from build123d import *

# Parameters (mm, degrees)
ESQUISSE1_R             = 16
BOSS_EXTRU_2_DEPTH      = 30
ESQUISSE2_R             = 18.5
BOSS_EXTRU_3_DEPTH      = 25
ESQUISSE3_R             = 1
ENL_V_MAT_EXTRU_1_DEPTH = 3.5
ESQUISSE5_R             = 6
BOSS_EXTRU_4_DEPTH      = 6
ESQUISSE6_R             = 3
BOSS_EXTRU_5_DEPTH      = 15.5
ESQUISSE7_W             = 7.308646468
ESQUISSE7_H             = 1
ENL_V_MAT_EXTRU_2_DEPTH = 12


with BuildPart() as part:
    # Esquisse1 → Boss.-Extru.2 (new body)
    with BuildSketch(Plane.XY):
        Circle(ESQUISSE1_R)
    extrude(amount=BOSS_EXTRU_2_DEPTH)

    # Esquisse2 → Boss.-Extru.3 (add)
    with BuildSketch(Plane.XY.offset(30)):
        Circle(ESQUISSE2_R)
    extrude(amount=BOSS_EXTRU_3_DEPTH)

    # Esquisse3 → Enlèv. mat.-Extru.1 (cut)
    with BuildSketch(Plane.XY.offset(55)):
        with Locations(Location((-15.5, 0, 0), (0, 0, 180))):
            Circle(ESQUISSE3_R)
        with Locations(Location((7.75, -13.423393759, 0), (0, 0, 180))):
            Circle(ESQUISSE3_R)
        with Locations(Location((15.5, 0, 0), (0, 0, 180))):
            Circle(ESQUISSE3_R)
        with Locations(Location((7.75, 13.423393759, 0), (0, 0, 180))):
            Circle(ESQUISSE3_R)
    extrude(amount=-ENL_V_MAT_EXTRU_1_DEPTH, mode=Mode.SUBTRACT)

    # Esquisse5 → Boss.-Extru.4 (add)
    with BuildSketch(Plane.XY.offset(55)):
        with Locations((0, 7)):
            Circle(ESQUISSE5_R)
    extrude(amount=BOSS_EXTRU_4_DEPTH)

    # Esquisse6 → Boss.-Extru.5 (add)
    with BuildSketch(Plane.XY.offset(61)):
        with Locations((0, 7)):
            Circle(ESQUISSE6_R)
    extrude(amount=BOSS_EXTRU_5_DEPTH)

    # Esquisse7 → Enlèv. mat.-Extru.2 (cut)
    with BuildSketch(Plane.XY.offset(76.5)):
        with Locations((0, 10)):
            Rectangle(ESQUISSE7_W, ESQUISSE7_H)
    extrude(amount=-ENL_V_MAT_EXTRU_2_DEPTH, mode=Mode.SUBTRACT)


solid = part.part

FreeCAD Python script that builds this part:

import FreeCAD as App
import Part
import Sketcher


def add_polygon(sketch, points):
    """Adds a closed chain of lines whose ends are joined by coincident constraints."""
    first, n = sketch.GeometryCount, len(points)
    for a, b in zip(points, points[1:] + points[:1]):
        sketch.addGeometry(Part.LineSegment(App.Vector(*a, 0), App.Vector(*b, 0)), False)
    for i in range(n):
        sketch.addConstraint(Sketcher.Constraint("Coincident", first + i, 2, first + (i + 1) % n, 1))

doc = App.newDocument("Part")
body = doc.addObject("PartDesign::Body", "Body")

# Sketch on XY plane
sketch1 = body.newObject("Sketcher::SketchObject", "Sketch")
sketch1.AttachmentSupport = (doc.getObject("XY_Plane"), [""])
sketch1.MapMode = "FlatFace"
sketch1.addGeometry(Part.Circle(App.Vector(0, 0, 0), App.Vector(0, 0, 1), 16), False)
sketch1.addConstraint([
    Sketcher.Constraint("Coincident", 0, 3, -1, 1),
    Sketcher.Constraint("Diameter", 0, 32.0),
])
pad1 = body.newObject("PartDesign::Pad", "Pad")
pad1.Profile = sketch1
pad1.Length = 30

# Sketch on XY plane
sketch2 = body.newObject("Sketcher::SketchObject", "Sketch001")
sketch2.AttachmentSupport = (doc.getObject("XY_Plane"), [""])
sketch2.MapMode = "FlatFace"
sketch2.AttachmentOffset = App.Placement(App.Vector(0, 0, 30), App.Rotation())
sketch2.addGeometry(Part.Circle(App.Vector(0, 0, 0), App.Vector(0, 0, 1), 18), False)
sketch2.addConstraint([
    Sketcher.Constraint("Coincident", 0, 3, -1, 1),
    Sketcher.Constraint("Diameter", 0, 37.0),
])
pad2 = body.newObject("PartDesign::Pad", "Pad001")
pad2.Profile = sketch2
pad2.Length = 25

# Sketch on XY plane
sketch3 = body.newObject("Sketcher::SketchObject", "Sketch002")
sketch3.AttachmentSupport = (doc.getObject("XY_Plane"), [""])
sketch3.MapMode = "FlatFace"
sketch3.AttachmentOffset = App.Placement(App.Vector(0, 0, 55), App.Rotation())
sketch3.addGeometry([
    Part.Circle(App.Vector(-15.5, 0, 0), App.Vector(0, 0, 1), 1),
    Part.Circle(App.Vector(7.8, -13.4, 0), App.Vector(0, 0, 1), 1),
    Part.Circle(App.Vector(15.5, 0, 0), App.Vector(0, 0, 1), 1),
    Part.Circle(App.Vector(7.8, 13.4, 0), App.Vector(0, 0, 1), 1),
], False)
sketch3.addConstraint([
    Sketcher.Constraint("Equal", 0, 1),
    Sketcher.Constraint("Equal", 1, 2),
    Sketcher.Constraint("Equal", 2, 3),
    Sketcher.Constraint("Symmetric", 0, 3, 2, 3, -1, 1),
    Sketcher.Constraint("Symmetric", 1, 3, 3, 3, -1),
    Sketcher.Constraint("PointOnObject", 0, 3, -1),
    Sketcher.Constraint("Diameter", 0, 2.0),
    Sketcher.Constraint("DistanceX", 0, 3, 2, 3, 31.0),
    Sketcher.Constraint("DistanceX", -1, 1, 1, 3, 7.75),
    Sketcher.Constraint("DistanceY", 1, 3, -1, 1, 13.423394),
])
pocket1 = body.newObject("PartDesign::Pocket", "Pocket")
pocket1.Profile = sketch3
pocket1.Length = 3.5

# Sketch on XY plane
sketch4 = body.newObject("Sketcher::SketchObject", "Sketch003")
sketch4.AttachmentSupport = (doc.getObject("XY_Plane"), [""])
sketch4.MapMode = "FlatFace"
sketch4.AttachmentOffset = App.Placement(App.Vector(0, 0, 55), App.Rotation())
sketch4.addGeometry(Part.Circle(App.Vector(0, 7, 0), App.Vector(0, 0, 1), 6), False)
sketch4.addConstraint([
    Sketcher.Constraint("PointOnObject", 0, 3, -2),
    Sketcher.Constraint("Diameter", 0, 12.0),
    Sketcher.Constraint("DistanceY", -1, 1, 0, 3, 7.0),
])
pad3 = body.newObject("PartDesign::Pad", "Pad002")
pad3.Profile = sketch4
pad3.Length = 6

# Sketch on XY plane
sketch5 = body.newObject("Sketcher::SketchObject", "Sketch004")
sketch5.AttachmentSupport = (doc.getObject("XY_Plane"), [""])
sketch5.MapMode = "FlatFace"
sketch5.AttachmentOffset = App.Placement(App.Vector(0, 0, 61), App.Rotation())
sketch5.addGeometry(Part.Circle(App.Vector(0, 7, 0), App.Vector(0, 0, 1), 3), False)
sketch5.addConstraint([
    Sketcher.Constraint("PointOnObject", 0, 3, -2),
    Sketcher.Constraint("Diameter", 0, 6.0),
    Sketcher.Constraint("DistanceY", -1, 1, 0, 3, 7.0),
])
pad4 = body.newObject("PartDesign::Pad", "Pad003")
pad4.Profile = sketch5
pad4.Length = 15.5

# Sketch on XY plane
sketch6 = body.newObject("Sketcher::SketchObject", "Sketch005")
sketch6.AttachmentSupport = (doc.getObject("XY_Plane"), [""])
sketch6.MapMode = "FlatFace"
sketch6.AttachmentOffset = App.Placement(App.Vector(0, 0, 76.5), App.Rotation())
add_polygon(sketch6, [(-3.7, 10.5), (-3.7, 9.5), (3.7, 9.5), (3.7, 10.5)])  # lines 0-3
sketch6.addConstraint([
    Sketcher.Constraint("Vertical", 0),
    Sketcher.Constraint("Horizontal", 1),
    Sketcher.Constraint("Vertical", 2),
    Sketcher.Constraint("Horizontal", 3),
    Sketcher.Constraint("DistanceY", 0, 2, 0, 1, 1.0),
    Sketcher.Constraint("DistanceY", -1, 1, 0, 2, 9.5),
    Sketcher.Constraint("DistanceX", 1, 1, 1, 2, 7.308646),
    Sketcher.Constraint("DistanceX", 0, 2, -1, 1, 3.654323),
])
pocket2 = body.newObject("PartDesign::Pocket", "Pocket001")
pocket2.Profile = sketch6
pocket2.Length = 12

doc.recompute()
